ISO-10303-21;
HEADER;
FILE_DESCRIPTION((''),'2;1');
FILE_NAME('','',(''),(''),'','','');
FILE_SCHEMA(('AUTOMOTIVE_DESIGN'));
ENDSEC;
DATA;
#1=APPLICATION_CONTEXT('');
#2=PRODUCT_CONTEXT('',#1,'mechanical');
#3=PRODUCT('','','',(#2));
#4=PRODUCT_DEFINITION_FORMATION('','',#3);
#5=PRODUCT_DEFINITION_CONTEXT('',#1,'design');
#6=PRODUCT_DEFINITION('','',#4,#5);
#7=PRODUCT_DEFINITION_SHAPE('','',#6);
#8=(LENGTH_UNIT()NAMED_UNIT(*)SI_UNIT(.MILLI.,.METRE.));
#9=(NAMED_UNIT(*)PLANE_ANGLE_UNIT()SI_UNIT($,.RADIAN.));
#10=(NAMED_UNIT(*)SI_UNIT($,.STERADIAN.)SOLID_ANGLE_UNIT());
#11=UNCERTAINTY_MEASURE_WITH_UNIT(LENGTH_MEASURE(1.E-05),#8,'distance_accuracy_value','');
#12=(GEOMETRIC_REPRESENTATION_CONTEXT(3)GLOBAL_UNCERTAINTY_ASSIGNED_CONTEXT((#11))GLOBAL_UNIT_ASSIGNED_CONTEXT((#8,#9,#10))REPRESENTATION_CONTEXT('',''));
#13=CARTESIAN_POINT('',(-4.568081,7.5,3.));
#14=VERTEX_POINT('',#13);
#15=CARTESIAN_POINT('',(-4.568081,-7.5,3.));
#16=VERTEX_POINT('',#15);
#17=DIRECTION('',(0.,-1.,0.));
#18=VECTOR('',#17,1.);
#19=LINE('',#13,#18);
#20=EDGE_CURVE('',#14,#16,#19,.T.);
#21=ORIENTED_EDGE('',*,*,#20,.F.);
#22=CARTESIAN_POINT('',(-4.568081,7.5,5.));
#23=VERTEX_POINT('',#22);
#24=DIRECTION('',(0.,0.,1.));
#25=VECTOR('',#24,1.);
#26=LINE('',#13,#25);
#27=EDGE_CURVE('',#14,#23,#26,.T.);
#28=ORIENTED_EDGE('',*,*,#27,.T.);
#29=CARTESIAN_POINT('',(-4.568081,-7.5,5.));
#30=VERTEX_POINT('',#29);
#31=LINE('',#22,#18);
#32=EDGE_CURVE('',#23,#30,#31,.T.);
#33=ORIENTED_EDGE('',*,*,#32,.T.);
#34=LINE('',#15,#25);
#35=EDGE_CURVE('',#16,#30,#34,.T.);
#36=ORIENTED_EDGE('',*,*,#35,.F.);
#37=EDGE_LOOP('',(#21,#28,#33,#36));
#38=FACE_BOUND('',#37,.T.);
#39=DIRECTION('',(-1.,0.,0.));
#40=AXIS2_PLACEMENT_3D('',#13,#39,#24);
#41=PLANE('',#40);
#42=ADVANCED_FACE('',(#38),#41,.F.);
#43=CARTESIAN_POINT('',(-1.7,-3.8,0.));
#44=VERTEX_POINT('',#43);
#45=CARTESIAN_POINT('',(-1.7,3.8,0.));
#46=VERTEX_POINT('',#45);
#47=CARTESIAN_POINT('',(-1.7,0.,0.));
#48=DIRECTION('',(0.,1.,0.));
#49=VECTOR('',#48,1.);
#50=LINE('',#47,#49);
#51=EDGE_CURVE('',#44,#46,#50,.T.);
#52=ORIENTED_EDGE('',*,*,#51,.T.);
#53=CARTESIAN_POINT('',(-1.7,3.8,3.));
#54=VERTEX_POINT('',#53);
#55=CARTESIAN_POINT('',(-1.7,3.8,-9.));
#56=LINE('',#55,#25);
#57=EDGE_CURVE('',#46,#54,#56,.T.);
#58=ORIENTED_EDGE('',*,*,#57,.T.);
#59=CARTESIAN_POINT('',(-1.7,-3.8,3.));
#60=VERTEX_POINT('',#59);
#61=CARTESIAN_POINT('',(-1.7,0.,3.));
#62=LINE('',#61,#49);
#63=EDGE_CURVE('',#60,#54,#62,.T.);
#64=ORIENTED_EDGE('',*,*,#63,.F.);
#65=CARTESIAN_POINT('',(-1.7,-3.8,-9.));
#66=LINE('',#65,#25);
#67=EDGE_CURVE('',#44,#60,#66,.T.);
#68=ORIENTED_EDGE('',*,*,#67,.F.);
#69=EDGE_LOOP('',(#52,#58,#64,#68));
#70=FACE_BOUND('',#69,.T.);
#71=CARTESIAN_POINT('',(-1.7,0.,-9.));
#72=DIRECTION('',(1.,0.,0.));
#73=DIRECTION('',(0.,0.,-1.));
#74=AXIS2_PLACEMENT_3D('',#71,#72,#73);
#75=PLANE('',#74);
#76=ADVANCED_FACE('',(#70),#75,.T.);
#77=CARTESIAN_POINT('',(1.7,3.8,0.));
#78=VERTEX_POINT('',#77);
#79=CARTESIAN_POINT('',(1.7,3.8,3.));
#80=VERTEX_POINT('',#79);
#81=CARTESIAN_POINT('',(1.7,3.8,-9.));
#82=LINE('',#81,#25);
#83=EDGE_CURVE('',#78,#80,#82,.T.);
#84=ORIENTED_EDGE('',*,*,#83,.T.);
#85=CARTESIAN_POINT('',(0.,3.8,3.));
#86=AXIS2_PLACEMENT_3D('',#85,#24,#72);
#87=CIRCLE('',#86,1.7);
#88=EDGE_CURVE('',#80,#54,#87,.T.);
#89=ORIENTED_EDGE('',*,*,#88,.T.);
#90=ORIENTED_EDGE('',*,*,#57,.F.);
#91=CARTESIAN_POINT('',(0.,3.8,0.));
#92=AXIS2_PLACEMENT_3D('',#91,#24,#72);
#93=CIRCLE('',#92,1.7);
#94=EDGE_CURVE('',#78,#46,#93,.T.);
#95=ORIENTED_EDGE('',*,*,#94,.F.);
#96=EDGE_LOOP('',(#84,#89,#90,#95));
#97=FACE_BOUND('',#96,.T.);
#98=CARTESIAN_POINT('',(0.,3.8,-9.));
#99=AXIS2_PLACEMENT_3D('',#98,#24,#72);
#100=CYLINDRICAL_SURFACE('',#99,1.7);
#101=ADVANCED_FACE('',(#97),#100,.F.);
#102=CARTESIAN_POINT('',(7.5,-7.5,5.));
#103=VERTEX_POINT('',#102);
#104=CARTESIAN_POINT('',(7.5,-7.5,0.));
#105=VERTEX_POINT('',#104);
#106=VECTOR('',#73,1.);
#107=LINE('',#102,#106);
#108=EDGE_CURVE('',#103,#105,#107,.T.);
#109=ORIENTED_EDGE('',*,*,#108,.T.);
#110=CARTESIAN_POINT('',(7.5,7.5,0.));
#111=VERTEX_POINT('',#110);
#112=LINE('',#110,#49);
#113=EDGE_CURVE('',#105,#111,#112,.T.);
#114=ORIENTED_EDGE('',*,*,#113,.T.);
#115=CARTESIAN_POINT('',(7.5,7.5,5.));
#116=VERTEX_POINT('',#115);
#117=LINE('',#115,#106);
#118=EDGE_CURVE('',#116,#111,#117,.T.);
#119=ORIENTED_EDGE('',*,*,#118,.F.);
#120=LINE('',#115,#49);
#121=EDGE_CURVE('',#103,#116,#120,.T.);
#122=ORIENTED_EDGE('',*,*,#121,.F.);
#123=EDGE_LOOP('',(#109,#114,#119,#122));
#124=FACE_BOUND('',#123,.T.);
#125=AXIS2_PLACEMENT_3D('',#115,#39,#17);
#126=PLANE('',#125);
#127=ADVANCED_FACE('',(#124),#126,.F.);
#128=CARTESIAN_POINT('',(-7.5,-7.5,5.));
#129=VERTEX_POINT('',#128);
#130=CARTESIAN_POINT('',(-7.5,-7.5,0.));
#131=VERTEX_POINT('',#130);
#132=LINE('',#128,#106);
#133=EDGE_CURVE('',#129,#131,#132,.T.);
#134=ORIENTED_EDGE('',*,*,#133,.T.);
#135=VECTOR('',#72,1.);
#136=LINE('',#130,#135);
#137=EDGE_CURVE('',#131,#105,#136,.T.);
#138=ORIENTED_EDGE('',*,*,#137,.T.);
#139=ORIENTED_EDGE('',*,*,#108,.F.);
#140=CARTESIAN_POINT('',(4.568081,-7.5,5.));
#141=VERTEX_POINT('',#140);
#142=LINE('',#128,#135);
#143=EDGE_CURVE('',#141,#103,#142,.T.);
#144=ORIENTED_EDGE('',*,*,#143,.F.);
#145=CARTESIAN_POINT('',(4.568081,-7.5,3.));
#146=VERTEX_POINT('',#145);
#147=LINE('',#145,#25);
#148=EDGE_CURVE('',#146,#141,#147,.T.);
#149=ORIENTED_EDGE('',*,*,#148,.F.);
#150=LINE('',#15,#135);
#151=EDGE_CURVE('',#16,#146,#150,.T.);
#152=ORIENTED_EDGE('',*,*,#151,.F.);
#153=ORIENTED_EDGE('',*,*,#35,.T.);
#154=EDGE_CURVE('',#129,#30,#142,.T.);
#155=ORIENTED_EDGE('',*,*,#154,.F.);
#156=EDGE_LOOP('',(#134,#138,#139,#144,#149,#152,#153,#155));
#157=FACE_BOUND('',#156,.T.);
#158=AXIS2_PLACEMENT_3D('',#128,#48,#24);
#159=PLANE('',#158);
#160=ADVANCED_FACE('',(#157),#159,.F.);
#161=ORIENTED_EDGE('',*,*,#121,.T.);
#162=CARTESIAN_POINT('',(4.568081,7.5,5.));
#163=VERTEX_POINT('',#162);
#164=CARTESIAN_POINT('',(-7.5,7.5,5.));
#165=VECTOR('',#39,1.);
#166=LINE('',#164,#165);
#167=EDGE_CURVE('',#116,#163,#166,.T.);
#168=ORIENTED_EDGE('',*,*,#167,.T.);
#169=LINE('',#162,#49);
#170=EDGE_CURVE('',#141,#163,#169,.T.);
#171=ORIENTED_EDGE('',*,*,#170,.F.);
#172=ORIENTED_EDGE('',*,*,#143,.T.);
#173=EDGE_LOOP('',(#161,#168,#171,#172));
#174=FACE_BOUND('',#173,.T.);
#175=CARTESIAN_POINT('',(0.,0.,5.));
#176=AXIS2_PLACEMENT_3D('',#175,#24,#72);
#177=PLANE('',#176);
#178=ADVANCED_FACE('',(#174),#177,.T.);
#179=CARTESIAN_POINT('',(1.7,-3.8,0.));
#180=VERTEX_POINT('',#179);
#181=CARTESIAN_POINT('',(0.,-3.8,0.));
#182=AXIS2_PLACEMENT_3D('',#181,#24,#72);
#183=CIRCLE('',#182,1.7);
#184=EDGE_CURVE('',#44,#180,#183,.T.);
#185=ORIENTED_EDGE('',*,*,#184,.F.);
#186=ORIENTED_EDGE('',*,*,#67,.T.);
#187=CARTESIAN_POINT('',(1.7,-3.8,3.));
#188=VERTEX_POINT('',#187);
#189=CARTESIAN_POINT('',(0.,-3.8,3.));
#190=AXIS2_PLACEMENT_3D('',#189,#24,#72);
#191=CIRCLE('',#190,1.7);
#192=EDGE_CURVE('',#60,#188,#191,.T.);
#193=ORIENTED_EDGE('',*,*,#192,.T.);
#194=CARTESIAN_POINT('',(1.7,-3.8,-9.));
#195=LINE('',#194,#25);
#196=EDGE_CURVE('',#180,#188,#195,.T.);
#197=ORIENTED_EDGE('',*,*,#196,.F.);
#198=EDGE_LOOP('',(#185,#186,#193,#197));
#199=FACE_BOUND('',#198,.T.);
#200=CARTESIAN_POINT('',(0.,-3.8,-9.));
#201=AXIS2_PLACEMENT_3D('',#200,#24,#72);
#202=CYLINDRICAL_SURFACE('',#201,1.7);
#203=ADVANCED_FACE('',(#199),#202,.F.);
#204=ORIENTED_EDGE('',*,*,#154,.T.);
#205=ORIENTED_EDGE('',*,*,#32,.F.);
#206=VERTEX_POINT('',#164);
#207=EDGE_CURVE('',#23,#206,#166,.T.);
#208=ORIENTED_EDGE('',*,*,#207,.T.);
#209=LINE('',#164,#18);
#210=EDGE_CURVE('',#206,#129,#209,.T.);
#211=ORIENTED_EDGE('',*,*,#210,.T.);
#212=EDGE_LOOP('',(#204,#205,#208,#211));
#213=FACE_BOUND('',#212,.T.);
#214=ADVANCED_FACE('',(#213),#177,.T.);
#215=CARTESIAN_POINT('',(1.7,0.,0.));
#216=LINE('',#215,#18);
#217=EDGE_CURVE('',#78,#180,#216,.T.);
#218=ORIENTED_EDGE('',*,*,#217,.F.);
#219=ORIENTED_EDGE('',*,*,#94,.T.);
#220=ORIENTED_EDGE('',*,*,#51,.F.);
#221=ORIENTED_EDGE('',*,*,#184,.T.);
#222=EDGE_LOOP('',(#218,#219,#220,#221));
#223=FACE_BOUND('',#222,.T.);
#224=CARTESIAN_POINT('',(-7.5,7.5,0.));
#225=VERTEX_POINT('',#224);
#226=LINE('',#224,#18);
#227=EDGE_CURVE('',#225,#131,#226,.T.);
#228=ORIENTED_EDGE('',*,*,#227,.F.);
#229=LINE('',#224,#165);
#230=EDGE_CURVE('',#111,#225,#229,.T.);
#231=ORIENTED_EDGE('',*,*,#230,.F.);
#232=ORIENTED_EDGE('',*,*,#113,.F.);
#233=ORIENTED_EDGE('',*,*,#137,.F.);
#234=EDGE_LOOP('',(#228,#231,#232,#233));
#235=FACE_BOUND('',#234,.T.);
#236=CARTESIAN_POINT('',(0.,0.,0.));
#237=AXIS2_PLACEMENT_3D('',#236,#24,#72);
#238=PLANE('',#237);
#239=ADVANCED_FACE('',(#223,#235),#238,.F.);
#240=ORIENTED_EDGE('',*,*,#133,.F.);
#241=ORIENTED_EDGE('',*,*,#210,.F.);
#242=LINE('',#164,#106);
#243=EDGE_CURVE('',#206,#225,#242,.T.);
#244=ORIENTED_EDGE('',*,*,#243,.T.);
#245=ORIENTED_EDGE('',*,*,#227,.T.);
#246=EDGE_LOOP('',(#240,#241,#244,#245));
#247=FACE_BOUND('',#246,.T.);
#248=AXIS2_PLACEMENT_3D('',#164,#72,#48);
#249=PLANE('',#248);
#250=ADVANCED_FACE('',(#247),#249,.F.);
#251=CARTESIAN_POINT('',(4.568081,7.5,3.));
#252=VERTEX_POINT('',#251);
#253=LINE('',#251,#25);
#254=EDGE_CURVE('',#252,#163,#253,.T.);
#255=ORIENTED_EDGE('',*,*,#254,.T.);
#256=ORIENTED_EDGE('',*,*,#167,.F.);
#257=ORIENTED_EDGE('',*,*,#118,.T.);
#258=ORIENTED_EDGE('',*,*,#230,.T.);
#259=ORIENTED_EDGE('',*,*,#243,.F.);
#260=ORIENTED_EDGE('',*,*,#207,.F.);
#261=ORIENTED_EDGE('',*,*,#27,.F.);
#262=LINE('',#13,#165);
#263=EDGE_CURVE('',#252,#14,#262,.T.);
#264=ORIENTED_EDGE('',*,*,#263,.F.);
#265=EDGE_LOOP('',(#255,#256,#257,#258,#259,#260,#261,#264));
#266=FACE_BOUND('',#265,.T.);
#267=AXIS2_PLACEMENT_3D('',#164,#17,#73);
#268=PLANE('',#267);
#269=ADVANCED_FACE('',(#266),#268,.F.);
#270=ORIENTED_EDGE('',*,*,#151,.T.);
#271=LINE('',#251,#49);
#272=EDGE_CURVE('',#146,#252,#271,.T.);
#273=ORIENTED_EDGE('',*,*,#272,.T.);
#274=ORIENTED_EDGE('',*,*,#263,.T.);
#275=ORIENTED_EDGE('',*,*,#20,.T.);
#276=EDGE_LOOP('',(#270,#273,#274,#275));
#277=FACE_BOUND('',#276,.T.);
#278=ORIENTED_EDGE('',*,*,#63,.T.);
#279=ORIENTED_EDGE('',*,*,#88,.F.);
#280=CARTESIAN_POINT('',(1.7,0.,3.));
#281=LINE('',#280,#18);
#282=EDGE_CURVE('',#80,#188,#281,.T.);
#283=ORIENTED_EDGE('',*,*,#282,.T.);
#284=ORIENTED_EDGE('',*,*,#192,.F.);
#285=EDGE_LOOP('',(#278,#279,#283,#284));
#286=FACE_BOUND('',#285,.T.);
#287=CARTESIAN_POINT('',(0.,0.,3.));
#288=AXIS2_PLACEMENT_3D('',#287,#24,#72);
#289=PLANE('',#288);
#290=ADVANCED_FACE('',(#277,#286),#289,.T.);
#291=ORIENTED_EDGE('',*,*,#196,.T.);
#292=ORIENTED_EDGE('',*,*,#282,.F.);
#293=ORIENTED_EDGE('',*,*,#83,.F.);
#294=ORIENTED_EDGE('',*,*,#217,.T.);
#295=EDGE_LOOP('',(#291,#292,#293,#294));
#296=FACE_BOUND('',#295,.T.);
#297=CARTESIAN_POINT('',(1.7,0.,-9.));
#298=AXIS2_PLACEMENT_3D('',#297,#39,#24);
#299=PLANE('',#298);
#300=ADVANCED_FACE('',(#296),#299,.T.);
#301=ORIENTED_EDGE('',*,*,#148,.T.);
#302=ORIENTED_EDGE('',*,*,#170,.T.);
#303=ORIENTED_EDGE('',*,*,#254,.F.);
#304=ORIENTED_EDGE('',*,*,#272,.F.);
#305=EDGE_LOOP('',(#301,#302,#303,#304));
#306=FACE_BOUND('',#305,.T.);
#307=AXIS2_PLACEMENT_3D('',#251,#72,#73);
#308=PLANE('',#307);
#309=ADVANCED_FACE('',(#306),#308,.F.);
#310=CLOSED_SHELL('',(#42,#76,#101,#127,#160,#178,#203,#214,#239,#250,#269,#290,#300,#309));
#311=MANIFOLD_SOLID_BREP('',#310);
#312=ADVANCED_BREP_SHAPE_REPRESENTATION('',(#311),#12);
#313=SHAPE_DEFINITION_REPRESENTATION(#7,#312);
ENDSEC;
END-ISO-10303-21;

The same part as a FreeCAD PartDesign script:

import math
import FreeCAD as App
import Part
import Sketcher

V = App.Vector


def add_polygon(sketch, points):
    """Adds a closed chain of lines whose ends are joined by coincident constraints."""
    first, n = sketch.GeometryCount, len(points)
    for a, b in zip(points, points[1:] + points[:1]):
        sketch.addGeometry(Part.LineSegment(App.Vector(*a, 0), App.Vector(*b, 0)), False)
    for i in range(n):
        sketch.addConstraint(Sketcher.Constraint("Coincident", first + i, 2, first + (i + 1) % n, 1))

doc = App.newDocument("Part")
body = doc.addObject("PartDesign::Body", "Body")

# Sketch on XY plane
sketch1 = body.newObject("Sketcher::SketchObject", "Sketch")
sketch1.AttachmentSupport = (doc.getObject("XY_Plane"), [""])
sketch1.MapMode = "FlatFace"
add_polygon(sketch1, [(-8, 8), (-8, -8), (8, -8), (8, 8)])  # lines 0-3
sketch1.addConstraint([
    Sketcher.Constraint("Vertical", 0),
    Sketcher.Constraint("Horizontal", 1),
    Sketcher.Constraint("Vertical", 2),
    Sketcher.Constraint("Horizontal", 3),
    Sketcher.Constraint("Symmetric", 0, 2, 2, 2, -1, 1),
    Sketcher.Constraint("Equal", 3, 0),
    Sketcher.Constraint("DistanceX", 1, 1, 1, 2, 15.0),
])
pad1 = body.newObject("PartDesign::Pad", "Pad")
pad1.Profile = sketch1
pad1.Length = 5

# Sketch on XY plane
sketch2 = body.newObject("Sketcher::SketchObject", "Sketch001")
sketch2.AttachmentSupport = (doc.getObject("XY_Plane"), [""])
sketch2.MapMode = "FlatFace"
sketch2.AttachmentOffset = App.Placement(V(0, 0, 5), App.Rotation())
add_polygon(sketch2, [(-5, 8), (-5, -8), (5, -8), (5, 8)])  # lines 0-3
sketch2.addConstraint([
    Sketcher.Constraint("Vertical", 0),
    Sketcher.Constraint("Horizontal", 1),
    Sketcher.Constraint("Vertical", 2),
    Sketcher.Constraint("Horizontal", 3),
    Sketcher.Constraint("Symmetric", 0, 2, 2, 2, -1, 1),
    Sketcher.Constraint("DistanceY", 0, 2, 0, 1, 15.0),
    Sketcher.Constraint("DistanceX", 1, 1, 1, 2, 9.136161),
])
pocket1 = body.newObject("PartDesign::Pocket", "Pocket")
pocket1.Profile = sketch2
pocket1.Length = 2

# Sketch on XY plane
sketch3 = body.newObject("Sketcher::SketchObject", "Sketch002")
sketch3.AttachmentSupport = (doc.getObject("XY_Plane"), [""])
sketch3.MapMode = "FlatFace"
sketch3.AttachmentOffset = App.Placement(V(0, 0, 3), App.Rotation())
sketch3.addGeometry([
    Part.LineSegment(V(-1.7, 3.8, 0), V(-1.7, -3.8, 0)),
    Part.ArcOfCircle(Part.Circle(V(0, -3.8, 0), V(0, 0, 1), 1.7), math.radians(180), math.radians(360)),
    Part.LineSegment(V(1.7, -3.8, 0), V(1.7, 3.8, 0)),
    Part.ArcOfCircle(Part.Circle(V(0, 3.8, 0), V(0, 0, 1), 1.7), math.radians(0), math.radians(180)),
], False)
sketch3.addConstraint([
    Sketcher.Constraint("Tangent", 0, 2, 1, 1),
    Sketcher.Constraint("Tangent", 1, 2, 2, 1),
    Sketcher.Constraint("Tangent", 2, 2, 3, 1),
    Sketcher.Constraint("Tangent", 3, 2, 0, 1),
    Sketcher.Constraint("Vertical", 0),
    Sketcher.Constraint("Vertical", 2),
    Sketcher.Constraint("Symmetric", 1, 3, 3, 3, -1, 1),
    Sketcher.Constraint("Radius", 1, 1.7),
    Sketcher.Constraint("DistanceY", 0, 2, 0, 1, 7.6),
])
pocket2 = body.newObject("PartDesign::Pocket", "Pocket001")
pocket2.Profile = sketch3
pocket2.Length = 12

doc.recompute()
